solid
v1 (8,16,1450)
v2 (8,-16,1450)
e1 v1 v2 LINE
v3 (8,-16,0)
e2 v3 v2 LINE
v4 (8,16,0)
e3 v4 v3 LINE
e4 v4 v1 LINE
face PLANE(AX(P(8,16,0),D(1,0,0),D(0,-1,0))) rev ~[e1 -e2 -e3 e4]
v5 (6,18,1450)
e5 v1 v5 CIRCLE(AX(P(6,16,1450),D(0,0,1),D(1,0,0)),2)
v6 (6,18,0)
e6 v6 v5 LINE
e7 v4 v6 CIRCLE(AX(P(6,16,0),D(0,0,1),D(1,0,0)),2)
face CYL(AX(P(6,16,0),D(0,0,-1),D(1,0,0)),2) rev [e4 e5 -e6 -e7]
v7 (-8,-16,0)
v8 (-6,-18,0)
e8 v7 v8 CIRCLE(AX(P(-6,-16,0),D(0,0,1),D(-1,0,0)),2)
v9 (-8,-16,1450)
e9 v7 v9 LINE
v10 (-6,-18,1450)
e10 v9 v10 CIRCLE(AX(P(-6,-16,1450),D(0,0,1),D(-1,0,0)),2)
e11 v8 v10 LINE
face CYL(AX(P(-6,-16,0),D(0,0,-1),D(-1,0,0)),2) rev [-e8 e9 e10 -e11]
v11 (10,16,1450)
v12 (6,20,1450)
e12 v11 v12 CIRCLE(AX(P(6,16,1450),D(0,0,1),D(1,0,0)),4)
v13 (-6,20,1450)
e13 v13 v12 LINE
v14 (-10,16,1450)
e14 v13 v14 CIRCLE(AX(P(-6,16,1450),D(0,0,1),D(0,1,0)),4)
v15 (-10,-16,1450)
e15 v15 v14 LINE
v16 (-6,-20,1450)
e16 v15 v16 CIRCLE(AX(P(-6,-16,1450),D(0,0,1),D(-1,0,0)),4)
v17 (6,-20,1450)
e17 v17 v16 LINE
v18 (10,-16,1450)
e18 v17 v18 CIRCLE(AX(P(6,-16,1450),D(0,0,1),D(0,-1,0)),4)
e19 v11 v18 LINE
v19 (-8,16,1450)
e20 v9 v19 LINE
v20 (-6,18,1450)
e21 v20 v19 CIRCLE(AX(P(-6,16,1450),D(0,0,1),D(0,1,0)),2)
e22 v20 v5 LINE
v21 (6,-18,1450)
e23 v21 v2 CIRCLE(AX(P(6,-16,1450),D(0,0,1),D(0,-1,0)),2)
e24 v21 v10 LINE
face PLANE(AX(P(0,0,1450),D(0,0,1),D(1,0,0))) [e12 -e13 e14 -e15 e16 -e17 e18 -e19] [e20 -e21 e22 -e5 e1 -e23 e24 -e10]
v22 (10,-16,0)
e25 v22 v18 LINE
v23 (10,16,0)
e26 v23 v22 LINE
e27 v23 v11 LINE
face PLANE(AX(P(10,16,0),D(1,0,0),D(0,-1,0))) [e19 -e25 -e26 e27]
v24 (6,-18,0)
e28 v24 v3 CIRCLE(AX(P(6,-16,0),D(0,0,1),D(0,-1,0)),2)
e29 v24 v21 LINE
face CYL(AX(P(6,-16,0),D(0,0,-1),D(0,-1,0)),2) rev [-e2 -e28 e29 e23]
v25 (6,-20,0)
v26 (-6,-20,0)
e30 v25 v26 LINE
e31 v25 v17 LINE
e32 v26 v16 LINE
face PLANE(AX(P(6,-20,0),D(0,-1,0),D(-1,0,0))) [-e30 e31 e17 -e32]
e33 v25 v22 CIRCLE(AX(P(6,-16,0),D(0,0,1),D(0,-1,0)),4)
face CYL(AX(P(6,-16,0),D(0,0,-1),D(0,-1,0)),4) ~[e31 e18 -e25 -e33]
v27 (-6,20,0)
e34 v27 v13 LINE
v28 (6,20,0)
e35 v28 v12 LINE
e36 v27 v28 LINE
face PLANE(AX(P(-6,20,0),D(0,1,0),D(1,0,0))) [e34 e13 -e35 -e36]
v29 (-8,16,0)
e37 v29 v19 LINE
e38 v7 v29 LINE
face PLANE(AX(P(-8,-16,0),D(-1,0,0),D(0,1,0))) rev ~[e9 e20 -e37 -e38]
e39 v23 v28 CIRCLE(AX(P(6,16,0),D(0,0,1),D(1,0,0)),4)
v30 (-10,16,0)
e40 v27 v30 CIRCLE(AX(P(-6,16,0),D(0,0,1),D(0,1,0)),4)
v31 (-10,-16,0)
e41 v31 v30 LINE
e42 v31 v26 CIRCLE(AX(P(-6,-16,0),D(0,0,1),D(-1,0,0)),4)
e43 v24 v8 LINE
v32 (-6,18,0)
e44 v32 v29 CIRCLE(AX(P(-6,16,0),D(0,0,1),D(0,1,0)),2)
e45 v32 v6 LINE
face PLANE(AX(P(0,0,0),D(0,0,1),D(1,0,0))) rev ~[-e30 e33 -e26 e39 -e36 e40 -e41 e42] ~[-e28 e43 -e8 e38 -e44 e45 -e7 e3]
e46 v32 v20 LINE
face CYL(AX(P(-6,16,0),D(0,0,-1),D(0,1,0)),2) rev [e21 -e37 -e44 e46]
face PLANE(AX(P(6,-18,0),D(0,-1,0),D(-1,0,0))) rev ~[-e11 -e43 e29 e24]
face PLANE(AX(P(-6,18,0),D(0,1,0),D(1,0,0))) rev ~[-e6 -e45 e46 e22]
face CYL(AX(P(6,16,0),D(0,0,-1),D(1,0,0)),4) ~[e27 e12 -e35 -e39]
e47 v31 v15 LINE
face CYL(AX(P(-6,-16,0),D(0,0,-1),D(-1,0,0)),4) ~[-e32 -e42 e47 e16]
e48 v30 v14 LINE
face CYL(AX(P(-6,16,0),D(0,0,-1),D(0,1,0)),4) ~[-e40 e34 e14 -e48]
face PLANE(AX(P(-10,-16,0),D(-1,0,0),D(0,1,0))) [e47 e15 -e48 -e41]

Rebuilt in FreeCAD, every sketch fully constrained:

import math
import FreeCAD as App
import Part
import Sketcher

V = App.Vector

doc = App.newDocument("Part")
body = doc.addObject("PartDesign::Body", "Body")

# Sketch on XY plane
sketch1 = body.newObject("Sketcher::SketchObject", "Sketch")
sketch1.AttachmentSupport = (doc.getObject("XY_Plane"), [""])
sketch1.MapMode = "FlatFace"
sketch1.addGeometry([
    Part.LineSegment(V(-10, 16, 0), V(-10, -16, 0)),  # 0
    Part.ArcOfCircle(Part.Circle(V(-6, -16, 0), V(0, 0, 1), 4), math.radians(180), math.radians(270)),  # 1
    Part.LineSegment(V(-6, -20, 0), V(6, -20, 0)),  # 2
    Part.ArcOfCircle(Part.Circle(V(6, -16, 0), V(0, 0, 1), 4), math.radians(-90), math.radians(0)),  # 3
    Part.LineSegment(V(10, -16, 0), V(10, 16, 0)),  # 4
    Part.ArcOfCircle(Part.Circle(V(6, 16, 0), V(0, 0, 1), 4), math.radians(0), math.radians(90)),  # 5
    Part.LineSegment(V(6, 20, 0), V(-6, 20, 0)),  # 6
    Part.ArcOfCircle(Part.Circle(V(-6, 16, 0), V(0, 0, 1), 4), math.radians(90), math.radians(180)),  # 7
    Part.ArcOfCircle(Part.Circle(V(-6, 16, 0), V(0, 0, 1), 2), math.radians(90), math.radians(180)),  # 8
    Part.LineSegment(V(-6, 18, 0), V(6, 18, 0)),  # 9
    Part.ArcOfCircle(Part.Circle(V(6, 16, 0), V(0, 0, 1), 2), math.radians(0), math.radians(90)),  # 10
    Part.LineSegment(V(8, 16, 0), V(8, -16, 0)),  # 11
    Part.ArcOfCircle(Part.Circle(V(6, -16, 0), V(0, 0, 1), 2), math.radians(-90), math.radians(0)),  # 12
    Part.LineSegment(V(6, -18, 0), V(-6, -18, 0)),  # 13
    Part.ArcOfCircle(Part.Circle(V(-6, -16, 0), V(0, 0, 1), 2), math.radians(180), math.radians(270)),  # 14
    Part.LineSegment(V(-8, -16, 0), V(-8, 16, 0)),  # 15
], False)
sketch1.addConstraint([
    Sketcher.Constraint("Tangent", 0, 2, 1, 1),
    Sketcher.Constraint("Tangent", 1, 2, 2, 1),
    Sketcher.Constraint("Tangent", 2, 2, 3, 1),
    Sketcher.Constraint("Tangent", 3, 2, 4, 1),
    Sketcher.Constraint("Tangent", 4, 2, 5, 1),
    Sketcher.Constraint("Tangent", 5, 2, 6, 1),
    Sketcher.Constraint("Tangent", 6, 2, 7, 1),
    Sketcher.Constraint("Tangent", 7, 2, 0, 1),
    Sketcher.Constraint("Tangent", 8, 1, 9, 1),
    Sketcher.Constraint("Tangent", 9, 2, 10, 2),
    Sketcher.Constraint("Tangent", 10, 1, 11, 1),
    Sketcher.Constraint("Tangent", 11, 2, 12, 2),
    Sketcher.Constraint("Tangent", 12, 1, 13, 1),
    Sketcher.Constraint("Tangent", 13, 2, 14, 2),
    Sketcher.Constraint("Tangent", 14, 1, 15, 1),
    Sketcher.Constraint("Tangent", 15, 2, 8, 2),
    Sketcher.Constraint("Vertical", 0),
    Sketcher.Constraint("Horizontal", 2),
    Sketcher.Constraint("Vertical", 4),
    Sketcher.Constraint("Horizontal", 6),
    Sketcher.Constraint("Horizontal", 9),
    Sketcher.Constraint("Vertical", 11),
    Sketcher.Constraint("Horizontal", 13),
    Sketcher.Constraint("Vertical", 15),
    Sketcher.Constraint("Coincident", 8, 3, 7, 3),
    Sketcher.Constraint("Coincident", 10, 3, 5, 3),
    Sketcher.Constraint("Coincident", 12, 3, 3, 3),
    Sketcher.Constraint("Equal", 1, 3),
    Sketcher.Constraint("Equal", 3, 5),
    Sketcher.Constraint("Equal", 5, 7),
    Sketcher.Constraint("Equal", 12, 14),
    Sketcher.Constraint("Symmetric", 1, 3, 5, 3, -1, 1),
    Sketcher.Constraint("Radius", 1, 4.0),
    Sketcher.Constraint("Radius", 8, 2.0),
    Sketcher.Constraint("DistanceX", 0, 2, -1, 1, 10.0),
    Sketcher.Constraint("DistanceY", 1, 2, -1, 1, 20.0),
])
pad1 = body.newObject("PartDesign::Pad", "Pad")
pad1.Profile = sketch1
pad1.Length = 1450

doc.recompute()
